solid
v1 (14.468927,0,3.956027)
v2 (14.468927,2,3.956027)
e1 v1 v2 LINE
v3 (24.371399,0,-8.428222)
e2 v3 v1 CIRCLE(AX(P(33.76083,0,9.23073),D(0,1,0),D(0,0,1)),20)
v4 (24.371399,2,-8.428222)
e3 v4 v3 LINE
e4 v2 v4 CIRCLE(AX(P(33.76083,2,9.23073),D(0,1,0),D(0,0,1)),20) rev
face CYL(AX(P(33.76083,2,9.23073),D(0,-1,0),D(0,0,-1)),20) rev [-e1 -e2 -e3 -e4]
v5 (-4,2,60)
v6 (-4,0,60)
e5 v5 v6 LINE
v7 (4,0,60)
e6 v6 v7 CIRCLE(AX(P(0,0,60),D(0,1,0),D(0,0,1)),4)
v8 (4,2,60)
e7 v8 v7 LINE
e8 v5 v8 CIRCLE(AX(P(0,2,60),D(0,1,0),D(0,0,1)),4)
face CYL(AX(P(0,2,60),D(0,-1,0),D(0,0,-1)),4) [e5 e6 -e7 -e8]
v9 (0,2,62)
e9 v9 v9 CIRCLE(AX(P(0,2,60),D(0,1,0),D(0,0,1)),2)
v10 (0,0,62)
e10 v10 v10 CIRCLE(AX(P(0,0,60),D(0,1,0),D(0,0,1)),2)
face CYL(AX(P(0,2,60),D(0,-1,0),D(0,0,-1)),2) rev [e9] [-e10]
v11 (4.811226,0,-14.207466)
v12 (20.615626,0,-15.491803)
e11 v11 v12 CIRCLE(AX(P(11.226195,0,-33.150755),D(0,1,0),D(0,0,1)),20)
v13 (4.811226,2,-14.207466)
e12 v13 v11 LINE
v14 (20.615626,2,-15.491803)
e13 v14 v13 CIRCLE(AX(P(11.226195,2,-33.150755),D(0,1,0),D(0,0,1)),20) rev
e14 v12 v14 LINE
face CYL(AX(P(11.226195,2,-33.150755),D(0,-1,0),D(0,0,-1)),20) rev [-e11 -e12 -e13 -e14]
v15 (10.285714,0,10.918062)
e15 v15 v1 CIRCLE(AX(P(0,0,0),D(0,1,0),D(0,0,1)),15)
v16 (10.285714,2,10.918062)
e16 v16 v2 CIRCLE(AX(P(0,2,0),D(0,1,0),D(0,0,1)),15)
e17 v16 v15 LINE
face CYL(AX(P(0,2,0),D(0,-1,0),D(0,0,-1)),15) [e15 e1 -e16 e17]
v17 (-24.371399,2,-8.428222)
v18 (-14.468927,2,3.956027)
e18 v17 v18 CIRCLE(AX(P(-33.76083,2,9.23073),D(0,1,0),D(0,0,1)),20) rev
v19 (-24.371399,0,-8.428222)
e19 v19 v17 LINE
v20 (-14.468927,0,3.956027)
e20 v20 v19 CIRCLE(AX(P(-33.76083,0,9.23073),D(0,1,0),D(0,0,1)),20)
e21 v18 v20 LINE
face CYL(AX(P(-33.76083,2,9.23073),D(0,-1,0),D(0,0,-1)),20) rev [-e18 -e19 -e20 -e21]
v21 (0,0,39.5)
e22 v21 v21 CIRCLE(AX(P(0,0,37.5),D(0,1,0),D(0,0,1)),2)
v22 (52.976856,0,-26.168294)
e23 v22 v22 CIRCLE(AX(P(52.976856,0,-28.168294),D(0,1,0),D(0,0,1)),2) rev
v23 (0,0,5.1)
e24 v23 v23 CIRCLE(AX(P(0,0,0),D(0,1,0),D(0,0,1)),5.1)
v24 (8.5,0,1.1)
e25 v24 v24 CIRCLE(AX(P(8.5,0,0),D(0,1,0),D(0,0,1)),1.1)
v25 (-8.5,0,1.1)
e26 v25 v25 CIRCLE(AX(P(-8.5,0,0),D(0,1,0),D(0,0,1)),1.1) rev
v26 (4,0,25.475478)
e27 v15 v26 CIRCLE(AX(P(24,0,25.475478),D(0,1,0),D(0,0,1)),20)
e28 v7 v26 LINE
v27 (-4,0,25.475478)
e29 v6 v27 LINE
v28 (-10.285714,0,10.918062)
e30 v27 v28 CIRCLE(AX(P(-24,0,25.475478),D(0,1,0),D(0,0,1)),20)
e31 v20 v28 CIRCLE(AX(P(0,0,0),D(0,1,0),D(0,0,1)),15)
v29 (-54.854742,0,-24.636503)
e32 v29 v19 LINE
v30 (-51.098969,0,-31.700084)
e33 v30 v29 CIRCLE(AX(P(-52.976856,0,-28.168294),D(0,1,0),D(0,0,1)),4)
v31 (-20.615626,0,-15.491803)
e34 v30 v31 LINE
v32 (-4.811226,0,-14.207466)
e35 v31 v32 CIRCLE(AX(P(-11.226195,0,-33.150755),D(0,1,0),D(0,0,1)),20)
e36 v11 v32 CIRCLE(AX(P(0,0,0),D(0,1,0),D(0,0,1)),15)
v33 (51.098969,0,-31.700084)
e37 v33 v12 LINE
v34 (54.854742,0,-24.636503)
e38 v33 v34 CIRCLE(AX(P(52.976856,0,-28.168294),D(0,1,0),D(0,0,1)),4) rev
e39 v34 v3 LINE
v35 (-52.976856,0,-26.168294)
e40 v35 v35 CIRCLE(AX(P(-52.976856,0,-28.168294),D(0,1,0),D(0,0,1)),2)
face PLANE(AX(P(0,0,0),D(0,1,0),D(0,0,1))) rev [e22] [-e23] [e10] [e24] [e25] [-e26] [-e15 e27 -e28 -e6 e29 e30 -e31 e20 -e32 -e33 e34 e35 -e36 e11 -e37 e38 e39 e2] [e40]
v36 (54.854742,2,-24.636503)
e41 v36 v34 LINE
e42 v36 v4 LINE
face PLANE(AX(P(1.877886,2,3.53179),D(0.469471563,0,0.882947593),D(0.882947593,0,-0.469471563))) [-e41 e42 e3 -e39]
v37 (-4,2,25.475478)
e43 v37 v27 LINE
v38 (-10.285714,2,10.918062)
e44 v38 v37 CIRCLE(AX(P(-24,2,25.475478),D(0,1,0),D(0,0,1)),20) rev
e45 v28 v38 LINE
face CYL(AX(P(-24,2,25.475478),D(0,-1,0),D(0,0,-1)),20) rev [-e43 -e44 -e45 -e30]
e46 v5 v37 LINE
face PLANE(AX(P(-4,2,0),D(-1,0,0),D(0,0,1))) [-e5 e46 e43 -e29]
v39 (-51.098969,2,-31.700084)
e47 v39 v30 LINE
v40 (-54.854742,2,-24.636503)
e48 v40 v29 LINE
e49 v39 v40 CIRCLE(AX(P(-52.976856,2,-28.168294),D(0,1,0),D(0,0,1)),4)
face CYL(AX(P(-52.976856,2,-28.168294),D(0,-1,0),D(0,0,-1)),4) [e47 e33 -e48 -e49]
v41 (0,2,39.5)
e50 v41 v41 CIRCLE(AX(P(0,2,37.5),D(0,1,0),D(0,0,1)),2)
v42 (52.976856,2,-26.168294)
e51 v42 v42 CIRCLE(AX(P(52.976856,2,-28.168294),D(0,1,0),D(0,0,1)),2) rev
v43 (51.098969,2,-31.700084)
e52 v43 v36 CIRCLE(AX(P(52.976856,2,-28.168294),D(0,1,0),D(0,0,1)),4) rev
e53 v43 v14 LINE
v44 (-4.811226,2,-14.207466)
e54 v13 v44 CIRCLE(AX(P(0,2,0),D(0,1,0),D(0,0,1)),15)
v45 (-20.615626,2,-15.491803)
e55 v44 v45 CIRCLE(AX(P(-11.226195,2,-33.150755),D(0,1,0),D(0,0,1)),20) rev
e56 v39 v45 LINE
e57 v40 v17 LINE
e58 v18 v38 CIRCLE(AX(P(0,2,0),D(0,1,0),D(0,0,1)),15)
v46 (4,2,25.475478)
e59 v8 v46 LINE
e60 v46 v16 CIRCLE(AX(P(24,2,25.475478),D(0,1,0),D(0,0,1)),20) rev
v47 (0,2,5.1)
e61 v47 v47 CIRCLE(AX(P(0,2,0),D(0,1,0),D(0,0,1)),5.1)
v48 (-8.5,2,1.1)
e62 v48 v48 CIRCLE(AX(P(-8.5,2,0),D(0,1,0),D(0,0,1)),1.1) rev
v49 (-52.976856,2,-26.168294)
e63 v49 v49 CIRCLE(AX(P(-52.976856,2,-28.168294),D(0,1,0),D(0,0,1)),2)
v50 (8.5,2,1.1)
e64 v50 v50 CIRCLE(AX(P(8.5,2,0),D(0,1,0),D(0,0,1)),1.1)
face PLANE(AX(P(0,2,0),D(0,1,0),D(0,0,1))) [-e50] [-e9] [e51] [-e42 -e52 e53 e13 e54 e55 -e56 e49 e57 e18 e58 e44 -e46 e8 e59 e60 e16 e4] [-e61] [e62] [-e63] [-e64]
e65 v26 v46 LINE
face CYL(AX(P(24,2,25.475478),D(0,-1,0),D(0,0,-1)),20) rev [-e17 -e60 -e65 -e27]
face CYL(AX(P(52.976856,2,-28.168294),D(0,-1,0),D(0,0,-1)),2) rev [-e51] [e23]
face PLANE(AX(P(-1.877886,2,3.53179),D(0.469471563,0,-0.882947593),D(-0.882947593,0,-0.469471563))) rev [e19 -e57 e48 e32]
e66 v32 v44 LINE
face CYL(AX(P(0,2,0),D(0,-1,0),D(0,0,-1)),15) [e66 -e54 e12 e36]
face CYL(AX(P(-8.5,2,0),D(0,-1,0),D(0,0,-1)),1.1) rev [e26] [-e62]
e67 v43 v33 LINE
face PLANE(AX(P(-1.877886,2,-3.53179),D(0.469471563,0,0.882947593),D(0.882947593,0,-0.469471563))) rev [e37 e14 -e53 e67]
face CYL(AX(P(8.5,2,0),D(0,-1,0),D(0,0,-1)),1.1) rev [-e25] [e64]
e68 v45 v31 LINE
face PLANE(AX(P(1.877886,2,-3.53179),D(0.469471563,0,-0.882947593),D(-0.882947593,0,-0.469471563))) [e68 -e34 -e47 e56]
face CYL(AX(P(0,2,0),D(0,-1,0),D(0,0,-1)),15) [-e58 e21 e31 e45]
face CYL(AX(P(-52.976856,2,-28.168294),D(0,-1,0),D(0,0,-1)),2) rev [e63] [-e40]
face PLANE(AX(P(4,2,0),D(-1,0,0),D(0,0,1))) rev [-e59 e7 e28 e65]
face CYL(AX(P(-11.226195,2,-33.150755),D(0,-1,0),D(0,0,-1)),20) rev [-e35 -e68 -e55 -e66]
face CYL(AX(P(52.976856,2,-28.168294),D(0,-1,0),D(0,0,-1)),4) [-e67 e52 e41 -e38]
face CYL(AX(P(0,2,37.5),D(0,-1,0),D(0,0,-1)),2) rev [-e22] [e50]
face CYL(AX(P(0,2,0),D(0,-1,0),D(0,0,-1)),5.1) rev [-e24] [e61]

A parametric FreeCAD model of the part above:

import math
import FreeCAD as App
import Part
import Sketcher

V = App.Vector
Q = App.Units.Quantity


def edges_at(feature, points):
    """Names of the edges that pass closest to the given points."""
    edges = feature.Shape.Edges
    near = lambda p: min(range(len(edges)), key=lambda i: edges[i].distToShape(Part.Vertex(*p))[0])
    return sorted({f"Edge{near(p) + 1}" for p in points})

doc = App.newDocument("Part")
body = doc.addObject("PartDesign::Body", "Body")

sketch1 = body.newObject("Sketcher::SketchObject", "Sketch")
sketch1.AttachmentSupport = (doc.getObject("XZ_Plane"), [""])
sketch1.MapMode = "FlatFace"
sketch1.addGeometry([
    Part.ArcOfCircle(Part.Circle(V(-52.976856, -28.168294, 0), V(0, 0, 1), 4), math.radians(118.000001), math.radians(297.999991)),
    Part.LineSegment(V(-54.854742, -24.636503, 0), V(-14.642512, -3.255281, 0)),
    Part.ArcOfCircle(Part.Circle(V(0, 0, 0), V(0, 0, 1), 15), math.radians(105.46601), math.radians(192.53399)),
    Part.LineSegment(V(-4, 14.456832, 0), V(-4, 60, 0)),
    Part.ArcOfCircle(Part.Circle(V(0, 60, 0), V(0, 0, 1), 4), math.radians(0), math.radians(180)),
    Part.LineSegment(V(4, 60, 0), V(4, 14.456832, 0)),
    Part.ArcOfCircle(Part.Circle(V(0, 0, 0), V(0, 0, 1), 15), math.radians(-12.53399), math.radians(74.53399)),
    Part.LineSegment(V(14.642512, -3.255281, 0), V(54.854742, -24.636503, 0)),
    Part.ArcOfCircle(Part.Circle(V(52.976856, -28.168294, 0), V(0, 0, 1), 4), math.radians(-118.000009), math.radians(62.000001)),
    Part.LineSegment(V(51.098969, -31.700084, 0), V(10.886739, -10.318862, 0)),
    Part.ArcOfCircle(Part.Circle(V(0, 0, 0), V(0, 0, 1), 15), math.radians(-136.53399), math.radians(-43.46601)),
    Part.LineSegment(V(-10.886739, -10.318862, 0), V(-51.09897, -31.700084, 0)),
    Part.Circle(V(0, 60, 0), V(0, 0, 1), 2),
    Part.Circle(V(0, 37.5, 0), V(0, 0, 1), 2),
    Part.Circle(V(-8.5, 0, 0), V(0, 0, 1), 1.1),
    Part.Circle(V(-52.976856, -28.168294, 0), V(0, 0, 1), 2),
    Part.Circle(V(0, 0, 0), V(0, 0, 1), 5.1),
    Part.Circle(V(8.5, 0, 0), V(0, 0, 1), 1.1),
    Part.Circle(V(52.976856, -28.168294, 0), V(0, 0, 1), 2),
], False)
sketch1.addConstraint([
    Sketcher.Constraint("Tangent", 0, 1, 1, 1),
    Sketcher.Constraint("Coincident", 1, 2, 2, 2),
    Sketcher.Constraint("Coincident", 2, 1, 3, 1),
    Sketcher.Constraint("Tangent", 3, 2, 4, 2),
    Sketcher.Constraint("Tangent", 4, 1, 5, 1),
    Sketcher.Constraint("Coincident", 5, 2, 6, 2),
    Sketcher.Constraint("Coincident", 6, 1, 7, 1),
    Sketcher.Constraint("Tangent", 7, 2, 8, 2),
    Sketcher.Constraint("Tangent", 8, 1, 9, 1),
    Sketcher.Constraint("Coincident", 9, 2, 10, 2),
    Sketcher.Constraint("Coincident", 10, 1, 11, 1),
    Sketcher.Constraint("Tangent", 11, 2, 0, 2),
    Sketcher.Constraint("Vertical", 3),
    Sketcher.Constraint("Vertical", 5),
    Sketcher.Constraint("Coincident", 2, 3, -1, 1),
    Sketcher.Constraint("Coincident", 6, 3, -1, 1),
    Sketcher.Constraint("Coincident", 10, 3, -1, 1),
    Sketcher.Constraint("Coincident", 16, 3, -1, 1),
    Sketcher.Constraint("Coincident", 12, 3, 4, 3),
    Sketcher.Constraint("Coincident", 15, 3, 0, 3),
    Sketcher.Constraint("Coincident", 18, 3, 8, 3),
    Sketcher.Constraint("Equal", 0, 4),
    Sketcher.Constraint("Equal", 2, 6),
    Sketcher.Constraint("Equal", 4, 8),
    Sketcher.Constraint("Equal", 6, 10),
    Sketcher.Constraint("Equal", 12, 13),
    Sketcher.Constraint("Equal", 13, 15),
    Sketcher.Constraint("Equal", 14, 17),
    Sketcher.Constraint("Equal", 15, 18),
    Sketcher.Constraint("Symmetric", 14, 3, 17, 3, -1, 1),
    Sketcher.Constraint("Symmetric", 0, 3, 8, 3, -2),
    Sketcher.Constraint("PointOnObject", 4, 3, -2),
    Sketcher.Constraint("PointOnObject", 13, 3, -2),
    Sketcher.Constraint("PointOnObject", 14, 3, -1),
    Sketcher.Constraint("Parallel", 7, 9),
    Sketcher.Constraint("Parallel", 1, 11),
    Sketcher.Constraint("Horizontal", 1, 2, 6, 1),
    Sketcher.Constraint("Equal", 7, 9),
    Sketcher.Constraint("Diameter", 12, Q("4 mm")),
    Sketcher.Constraint("Radius", 0, Q("4 mm")),
    Sketcher.Constraint("Radius", 2, Q("15 mm")),
    Sketcher.Constraint("Diameter", 14, Q("2.2 mm")),
    Sketcher.Constraint("Diameter", 16, Q("10.2 mm")),
    Sketcher.Constraint("Angle", 1, Q("28 deg")),
    Sketcher.Constraint("DistanceY", -1, 1, 4, 3, Q("60 mm")),
    Sketcher.Constraint("DistanceX", 14, 3, 17, 3, Q("17 mm")),
    Sketcher.Constraint("DistanceY", -1, 1, 13, 3, Q("37.5 mm")),
    Sketcher.Constraint("Distance", 11, Q("45.543168 mm")),
])
pad1 = body.newObject("PartDesign::Pad", "Pad")
pad1.Profile = sketch1
pad1.Length = 2
pad1.Reversed = True
doc.recompute()

fillet = body.newObject("PartDesign::Fillet", "Fillet")
fillet.Base = (pad1, edges_at(pad1, [
    (-4, 1, 14.457),
    (-14.643, 1, -3.255),
    (-10.887, 1, -10.319),
    (10.887, 1, -10.319),
    (14.643, 1, -3.255),
    (4, 1, 14.457),
]))
fillet.Radius = 20

doc.recompute()
